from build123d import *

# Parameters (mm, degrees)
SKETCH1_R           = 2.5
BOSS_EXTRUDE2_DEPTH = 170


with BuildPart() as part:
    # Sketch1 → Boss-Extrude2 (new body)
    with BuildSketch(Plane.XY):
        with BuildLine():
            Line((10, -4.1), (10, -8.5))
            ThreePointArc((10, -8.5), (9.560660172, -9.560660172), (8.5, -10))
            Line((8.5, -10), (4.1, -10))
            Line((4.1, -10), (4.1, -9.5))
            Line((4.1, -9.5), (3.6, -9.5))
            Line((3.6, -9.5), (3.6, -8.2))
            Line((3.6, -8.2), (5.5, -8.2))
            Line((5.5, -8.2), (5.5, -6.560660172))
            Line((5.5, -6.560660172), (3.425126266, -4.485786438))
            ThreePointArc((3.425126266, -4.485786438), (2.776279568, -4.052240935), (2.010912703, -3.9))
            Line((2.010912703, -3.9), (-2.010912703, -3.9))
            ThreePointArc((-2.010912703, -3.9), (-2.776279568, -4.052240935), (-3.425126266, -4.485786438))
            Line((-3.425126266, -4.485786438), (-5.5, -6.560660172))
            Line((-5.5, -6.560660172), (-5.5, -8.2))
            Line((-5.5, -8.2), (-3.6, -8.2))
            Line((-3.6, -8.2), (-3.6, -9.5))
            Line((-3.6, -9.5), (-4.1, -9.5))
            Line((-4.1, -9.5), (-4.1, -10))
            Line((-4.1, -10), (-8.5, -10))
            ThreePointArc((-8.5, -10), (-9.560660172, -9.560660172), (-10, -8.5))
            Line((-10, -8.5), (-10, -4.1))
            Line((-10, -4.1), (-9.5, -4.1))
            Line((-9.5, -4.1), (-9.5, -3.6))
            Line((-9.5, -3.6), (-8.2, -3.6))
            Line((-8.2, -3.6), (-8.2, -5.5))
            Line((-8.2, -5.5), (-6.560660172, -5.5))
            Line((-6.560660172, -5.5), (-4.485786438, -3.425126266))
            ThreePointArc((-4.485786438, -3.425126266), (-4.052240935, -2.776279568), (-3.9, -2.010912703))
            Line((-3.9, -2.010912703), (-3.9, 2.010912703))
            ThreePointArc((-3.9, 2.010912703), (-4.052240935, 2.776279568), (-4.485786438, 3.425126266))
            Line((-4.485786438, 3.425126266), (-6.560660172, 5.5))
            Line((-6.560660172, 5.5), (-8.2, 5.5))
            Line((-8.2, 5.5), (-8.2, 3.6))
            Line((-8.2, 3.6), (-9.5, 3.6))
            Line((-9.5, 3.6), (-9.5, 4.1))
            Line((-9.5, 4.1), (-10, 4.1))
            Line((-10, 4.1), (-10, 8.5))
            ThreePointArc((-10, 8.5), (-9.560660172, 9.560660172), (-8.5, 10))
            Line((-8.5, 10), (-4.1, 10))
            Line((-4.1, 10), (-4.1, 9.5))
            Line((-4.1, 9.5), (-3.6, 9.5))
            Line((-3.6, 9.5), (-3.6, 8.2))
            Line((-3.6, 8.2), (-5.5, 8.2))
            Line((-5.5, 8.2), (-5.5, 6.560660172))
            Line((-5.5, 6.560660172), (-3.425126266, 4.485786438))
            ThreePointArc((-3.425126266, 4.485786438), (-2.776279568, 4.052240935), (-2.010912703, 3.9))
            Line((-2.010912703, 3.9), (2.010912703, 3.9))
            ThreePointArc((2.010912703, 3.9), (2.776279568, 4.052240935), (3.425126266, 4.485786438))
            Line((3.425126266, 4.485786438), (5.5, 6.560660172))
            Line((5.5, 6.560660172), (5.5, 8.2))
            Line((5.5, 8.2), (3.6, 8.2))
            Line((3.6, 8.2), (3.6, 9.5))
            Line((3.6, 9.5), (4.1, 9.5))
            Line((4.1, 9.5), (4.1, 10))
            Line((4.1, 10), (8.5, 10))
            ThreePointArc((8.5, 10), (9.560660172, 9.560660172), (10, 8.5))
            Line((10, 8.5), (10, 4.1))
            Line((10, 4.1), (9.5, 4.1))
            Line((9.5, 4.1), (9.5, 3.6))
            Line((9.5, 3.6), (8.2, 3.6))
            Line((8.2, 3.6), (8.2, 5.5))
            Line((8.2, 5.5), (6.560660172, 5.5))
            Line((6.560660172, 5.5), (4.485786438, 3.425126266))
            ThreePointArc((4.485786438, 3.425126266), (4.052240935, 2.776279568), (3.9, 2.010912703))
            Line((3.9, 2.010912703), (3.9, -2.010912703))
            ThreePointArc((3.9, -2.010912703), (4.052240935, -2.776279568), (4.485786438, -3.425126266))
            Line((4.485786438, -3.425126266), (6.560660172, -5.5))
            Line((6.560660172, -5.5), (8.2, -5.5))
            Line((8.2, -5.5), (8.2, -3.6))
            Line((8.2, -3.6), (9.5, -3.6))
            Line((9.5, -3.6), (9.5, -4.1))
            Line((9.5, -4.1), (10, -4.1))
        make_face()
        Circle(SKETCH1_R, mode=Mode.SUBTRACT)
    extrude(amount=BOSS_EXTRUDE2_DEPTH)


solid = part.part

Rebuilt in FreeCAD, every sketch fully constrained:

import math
import FreeCAD as App
import Part
import Sketcher

doc = App.newDocument("Part")
body = doc.addObject("PartDesign::Body", "Body")

sketch1 = body.newObject("Sketcher::SketchObject", "Sketch")
sketch1.AttachmentSupport = (doc.getObject("XY_Plane"), [""])
sketch1.MapMode = "FlatFace"
sketch1.addGeometry(Part.LineSegment(App.Vector(10, -8.5, 0), App.Vector(10, -4.1, 0)), False)
sketch1.addGeometry(Part.LineSegment(App.Vector(10, -4.1, 0), App.Vector(9.5, -4.1, 0)), False)
sketch1.addGeometry(Part.LineSegment(App.Vector(9.5, -4.1, 0), App.Vector(9.5, -3.6, 0)), False)
sketch1.addGeometry(Part.LineSegment(App.Vector(9.5, -3.6, 0), App.Vector(8.2, -3.6, 0)), False)
sketch1.addGeometry(Part.LineSegment(App.Vector(8.2, -3.6, 0), App.Vector(8.2, -5.5, 0)), False)
sketch1.addGeometry(Part.LineSegment(App.Vector(8.2, -5.5, 0), App.Vector(6.56, -5.5, 0)), False)
sketch1.addGeometry(Part.LineSegment(App.Vector(6.56, -5.5, 0), App.Vector(4.49, -3.43, 0)), False)
sketch1.addGeometry(Part.ArcOfCircle(Part.Circle(App.Vector(5.9, -2.01, 0), App.Vector(0, 0, 1), 2), math.radians(180), math.radians(225)), False)
sketch1.addGeometry(Part.LineSegment(App.Vector(3.9, -2.01, 0), App.Vector(3.9, 2.01, 0)), False)
sketch1.addGeometry(Part.ArcOfCircle(Part.Circle(App.Vector(5.9, 2.01, 0), App.Vector(0, 0, 1), 2), math.radians(135), math.radians(180)), False)
sketch1.addGeometry(Part.LineSegment(App.Vector(4.49, 3.43, 0), App.Vector(6.56, 5.5, 0)), False)
sketch1.addGeometry(Part.LineSegment(App.Vector(6.56, 5.5, 0), App.Vector(8.2, 5.5, 0)), False)
sketch1.addGeometry(Part.LineSegment(App.Vector(8.2, 5.5, 0), App.Vector(8.2, 3.6, 0)), False)
sketch1.addGeometry(Part.LineSegment(App.Vector(8.2, 3.6, 0), App.Vector(9.5, 3.6, 0)), False)
sketch1.addGeometry(Part.LineSegment(App.Vector(9.5, 3.6, 0), App.Vector(9.5, 4.1, 0)), False)
sketch1.addGeometry(Part.LineSegment(App.Vector(9.5, 4.1, 0), App.Vector(10, 4.1, 0)), False)
sketch1.addGeometry(Part.LineSegment(App.Vector(10, 4.1, 0), App.Vector(10, 8.5, 0)), False)
sketch1.addGeometry(Part.ArcOfCircle(Part.Circle(App.Vector(8.5, 8.5, 0), App.Vector(0, 0, 1), 1.5), math.radians(0), math.radians(90)), False)
sketch1.addGeometry(Part.LineSegment(App.Vector(8.5, 10, 0), App.Vector(4.1, 10, 0)), False)
sketch1.addGeometry(Part.LineSegment(App.Vector(4.1, 10, 0), App.Vector(4.1, 9.5, 0)), False)
sketch1.addGeometry(Part.LineSegment(App.Vector(4.1, 9.5, 0), App.Vector(3.6, 9.5, 0)), False)
sketch1.addGeometry(Part.LineSegment(App.Vector(3.6, 9.5, 0), App.Vector(3.6, 8.2, 0)), False)
sketch1.addGeometry(Part.LineSegment(App.Vector(3.6, 8.2, 0), App.Vector(5.5, 8.2, 0)), False)
sketch1.addGeometry(Part.LineSegment(App.Vector(5.5, 8.2, 0), App.Vector(5.5, 6.56, 0)), False)
sketch1.addGeometry(Part.LineSegment(App.Vector(5.5, 6.56, 0), App.Vector(3.43, 4.49, 0)), False)
sketch1.addGeometry(Part.ArcOfCircle(Part.Circle(App.Vector(2.01, 5.9, 0), App.Vector(0, 0, 1), 2), math.radians(-90), math.radians(-45)), False)
sketch1.addGeometry(Part.LineSegment(App.Vector(2.01, 3.9, 0), App.Vector(-2.01, 3.9, 0)), False)
sketch1.addGeometry(Part.ArcOfCircle(Part.Circle(App.Vector(-2.01, 5.9, 0), App.Vector(0, 0, 1), 2), math.radians(-135), math.radians(-90)), False)
sketch1.addGeometry(Part.LineSegment(App.Vector(-3.43, 4.49, 0), App.Vector(-5.5, 6.56, 0)), False)
sketch1.addGeometry(Part.LineSegment(App.Vector(-5.5, 6.56, 0), App.Vector(-5.5, 8.2, 0)), False)
sketch1.addGeometry(Part.LineSegment(App.Vector(-5.5, 8.2, 0), App.Vector(-3.6, 8.2, 0)), False)
sketch1.addGeometry(Part.LineSegment(App.Vector(-3.6, 8.2, 0), App.Vector(-3.6, 9.5, 0)), False)
sketch1.addGeometry(Part.LineSegment(App.Vector(-3.6, 9.5, 0), App.Vector(-4.1, 9.5, 0)), False)
sketch1.addGeometry(Part.LineSegment(App.Vector(-4.1, 9.5, 0), App.Vector(-4.1, 10, 0)), False)
sketch1.addGeometry(Part.LineSegment(App.Vector(-4.1, 10, 0), App.Vector(-8.5, 10, 0)), False)
sketch1.addGeometry(Part.ArcOfCircle(Part.Circle(App.Vector(-8.5, 8.5, 0), App.Vector(0, 0, 1), 1.5), math.radians(90), math.radians(180)), False)
sketch1.addGeometry(Part.LineSegment(App.Vector(-10, 8.5, 0), App.Vector(-10, 4.1, 0)), False)
sketch1.addGeometry(Part.LineSegment(App.Vector(-10, 4.1, 0), App.Vector(-9.5, 4.1, 0)), False)
sketch1.addGeometry(Part.LineSegment(App.Vector(-9.5, 4.1, 0), App.Vector(-9.5, 3.6, 0)), False)
sketch1.addGeometry(Part.LineSegment(App.Vector(-9.5, 3.6, 0), App.Vector(-8.2, 3.6, 0)), False)
sketch1.addGeometry(Part.LineSegment(App.Vector(-8.2, 3.6, 0), App.Vector(-8.2, 5.5, 0)), False)
sketch1.addGeometry(Part.LineSegment(App.Vector(-8.2, 5.5, 0), App.Vector(-6.56, 5.5, 0)), False)
sketch1.addGeometry(Part.LineSegment(App.Vector(-6.56, 5.5, 0), App.Vector(-4.49, 3.43, 0)), False)
sketch1.addGeometry(Part.ArcOfCircle(Part.Circle(App.Vector(-5.9, 2.01, 0), App.Vector(0, 0, 1), 2), math.radians(0), math.radians(45)), False)
sketch1.addGeometry(Part.LineSegment(App.Vector(-3.9, 2.01, 0), App.Vector(-3.9, -2.01, 0)), False)
sketch1.addGeometry(Part.ArcOfCircle(Part.Circle(App.Vector(-5.9, -2.01, 0), App.Vector(0, 0, 1), 2), math.radians(-45), math.radians(0)), False)
sketch1.addGeometry(Part.LineSegment(App.Vector(-4.49, -3.43, 0), App.Vector(-6.56, -5.5, 0)), False)
sketch1.addGeometry(Part.LineSegment(App.Vector(-6.56, -5.5, 0), App.Vector(-8.2, -5.5, 0)), False)
sketch1.addGeometry(Part.LineSegment(App.Vector(-8.2, -5.5, 0), App.Vector(-8.2, -3.6, 0)), False)
sketch1.addGeometry(Part.LineSegment(App.Vector(-8.2, -3.6, 0), App.Vector(-9.5, -3.6, 0)), False)
sketch1.addGeometry(Part.LineSegment(App.Vector(-9.5, -3.6, 0), App.Vector(-9.5, -4.1, 0)), False)
sketch1.addGeometry(Part.LineSegment(App.Vector(-9.5, -4.1, 0), App.Vector(-10, -4.1, 0)), False)
sketch1.addGeometry(Part.LineSegment(App.Vector(-10, -4.1, 0), App.Vector(-10, -8.5, 0)), False)
sketch1.addGeometry(Part.ArcOfCircle(Part.Circle(App.Vector(-8.5, -8.5, 0), App.Vector(0, 0, 1), 1.5), math.radians(180), math.radians(270)), False)
sketch1.addGeometry(Part.LineSegment(App.Vector(-8.5, -10, 0), App.Vector(-4.1, -10, 0)), False)
sketch1.addGeometry(Part.LineSegment(App.Vector(-4.1, -10, 0), App.Vector(-4.1, -9.5, 0)), False)
sketch1.addGeometry(Part.LineSegment(App.Vector(-4.1, -9.5, 0), App.Vector(-3.6, -9.5, 0)), False)
sketch1.addGeometry(Part.LineSegment(App.Vector(-3.6, -9.5, 0), App.Vector(-3.6, -8.2, 0)), False)
sketch1.addGeometry(Part.LineSegment(App.Vector(-3.6, -8.2, 0), App.Vector(-5.5, -8.2, 0)), False)
sketch1.addGeometry(Part.LineSegment(App.Vector(-5.5, -8.2, 0), App.Vector(-5.5, -6.56, 0)), False)
sketch1.addGeometry(Part.LineSegment(App.Vector(-5.5, -6.56, 0), App.Vector(-3.43, -4.49, 0)), False)
sketch1.addGeometry(Part.ArcOfCircle(Part.Circle(App.Vector(-2.01, -5.9, 0), App.Vector(0, 0, 1), 2), math.radians(90), math.radians(135)), False)
sketch1.addGeometry(Part.LineSegment(App.Vector(-2.01, -3.9, 0), App.Vector(2.01, -3.9, 0)), False)
sketch1.addGeometry(Part.ArcOfCircle(Part.Circle(App.Vector(2.01, -5.9, 0), App.Vector(0, 0, 1), 2), math.radians(45), math.radians(90)), False)
sketch1.addGeometry(Part.LineSegment(App.Vector(3.43, -4.49, 0), App.Vector(5.5, -6.56, 0)), False)
sketch1.addGeometry(Part.LineSegment(App.Vector(5.5, -6.56, 0), App.Vector(5.5, -8.2, 0)), False)
sketch1.addGeometry(Part.LineSegment(App.Vector(5.5, -8.2, 0), App.Vector(3.6, -8.2, 0)), False)
sketch1.addGeometry(Part.LineSegment(App.Vector(3.6, -8.2, 0), App.Vector(3.6, -9.5, 0)), False)
sketch1.addGeometry(Part.LineSegment(App.Vector(3.6, -9.5, 0), App.Vector(4.1, -9.5, 0)), False)
sketch1.addGeometry(Part.LineSegment(App.Vector(4.1, -9.5, 0), App.Vector(4.1, -10, 0)), False)
sketch1.addGeometry(Part.LineSegment(App.Vector(4.1, -10, 0), App.Vector(8.5, -10, 0)), False)
sketch1.addGeometry(Part.ArcOfCircle(Part.Circle(App.Vector(8.5, -8.5, 0), App.Vector(0, 0, 1), 1.5), math.radians(-90), math.radians(0)), False)
sketch1.addGeometry(Part.Circle(App.Vector(0, 0, 0), App.Vector(0, 0, 1), 2.5), False)
sketch1.addConstraint(Sketcher.Constraint("Coincident", 0, 2, 1, 1))
sketch1.addConstraint(Sketcher.Constraint("Coincident", 1, 2, 2, 1))
sketch1.addConstraint(Sketcher.Constraint("Coincident", 2, 2, 3, 1))
sketch1.addConstraint(Sketcher.Constraint("Coincident", 3, 2, 4, 1))
sketch1.addConstraint(Sketcher.Constraint("Coincident", 4, 2, 5, 1))
sketch1.addConstraint(Sketcher.Constraint("Coincident", 5, 2, 6, 1))
sketch1.addConstraint(Sketcher.Constraint("Tangent", 6, 2, 7, 2))
sketch1.addConstraint(Sketcher.Constraint("Tangent", 7, 1, 8, 1))
sketch1.addConstraint(Sketcher.Constraint("Tangent", 8, 2, 9, 2))
sketch1.addConstraint(Sketcher.Constraint("Tangent", 9, 1, 10, 1))
sketch1.addConstraint(Sketcher.Constraint("Coincident", 10, 2, 11, 1))
sketch1.addConstraint(Sketcher.Constraint("Coincident", 11, 2, 12, 1))
sketch1.addConstraint(Sketcher.Constraint("Coincident", 12, 2, 13, 1))
sketch1.addConstraint(Sketcher.Constraint("Coincident", 13, 2, 14, 1))
sketch1.addConstraint(Sketcher.Constraint("Coincident", 14, 2, 15, 1))
sketch1.addConstraint(Sketcher.Constraint("Coincident", 15, 2, 16, 1))
sketch1.addConstraint(Sketcher.Constraint("Tangent", 16, 2, 17, 1))
sketch1.addConstraint(Sketcher.Constraint("Tangent", 17, 2, 18, 1))
sketch1.addConstraint(Sketcher.Constraint("Coincident", 18, 2, 19, 1))
sketch1.addConstraint(Sketcher.Constraint("Coincident", 19, 2, 20, 1))
sketch1.addConstraint(Sketcher.Constraint("Coincident", 20, 2, 21, 1))
sketch1.addConstraint(Sketcher.Constraint("Coincident", 21, 2, 22, 1))
sketch1.addConstraint(Sketcher.Constraint("Coincident", 22, 2, 23, 1))
sketch1.addConstraint(Sketcher.Constraint("Coincident", 23, 2, 24, 1))
sketch1.addConstraint(Sketcher.Constraint("Tangent", 24, 2, 25, 2))
sketch1.addConstraint(Sketcher.Constraint("Tangent", 25, 1, 26, 1))
sketch1.addConstraint(Sketcher.Constraint("Tangent", 26, 2, 27, 2))
sketch1.addConstraint(Sketcher.Constraint("Tangent", 27, 1, 28, 1))
sketch1.addConstraint(Sketcher.Constraint("Coincident", 28, 2, 29, 1))
sketch1.addConstraint(Sketcher.Constraint("Coincident", 29, 2, 30, 1))
sketch1.addConstraint(Sketcher.Constraint("Coincident", 30, 2, 31, 1))
sketch1.addConstraint(Sketcher.Constraint("Coincident", 31, 2, 32, 1))
sketch1.addConstraint(Sketcher.Constraint("Coincident", 32, 2, 33, 1))
sketch1.addConstraint(Sketcher.Constraint("Coincident", 33, 2, 34, 1))
sketch1.addConstraint(Sketcher.Constraint("Tangent", 34, 2, 35, 1))
sketch1.addConstraint(Sketcher.Constraint("Tangent", 35, 2, 36, 1))
sketch1.addConstraint(Sketcher.Constraint("Coincident", 36, 2, 37, 1))
sketch1.addConstraint(Sketcher.Constraint("Coincident", 37, 2, 38, 1))
sketch1.addConstraint(Sketcher.Constraint("Coincident", 38, 2, 39, 1))
sketch1.addConstraint(Sketcher.Constraint("Coincident", 39, 2, 40, 1))
sketch1.addConstraint(Sketcher.Constraint("Coincident", 40, 2, 41, 1))
sketch1.addConstraint(Sketcher.Constraint("Coincident", 41, 2, 42, 1))
sketch1.addConstraint(Sketcher.Constraint("Tangent", 42, 2, 43, 2))
sketch1.addConstraint(Sketcher.Constraint("Tangent", 43, 1, 44, 1))
sketch1.addConstraint(Sketcher.Constraint("Tangent", 44, 2, 45, 2))
sketch1.addConstraint(Sketcher.Constraint("Tangent", 45, 1, 46, 1))
sketch1.addConstraint(Sketcher.Constraint("Coincident", 46, 2, 47, 1))
sketch1.addConstraint(Sketcher.Constraint("Coincident", 47, 2, 48, 1))
sketch1.addConstraint(Sketcher.Constraint("Coincident", 48, 2, 49, 1))
sketch1.addConstraint(Sketcher.Constraint("Coincident", 49, 2, 50, 1))
sketch1.addConstraint(Sketcher.Constraint("Coincident", 50, 2, 51, 1))
sketch1.addConstraint(Sketcher.Constraint("Coincident", 51, 2, 52, 1))
sketch1.addConstraint(Sketcher.Constraint("Tangent", 52, 2, 53, 1))
sketch1.addConstraint(Sketcher.Constraint("Tangent", 53, 2, 54, 1))
sketch1.addConstraint(Sketcher.Constraint("Coincident", 54, 2, 55, 1))
sketch1.addConstraint(Sketcher.Constraint("Coincident", 55, 2, 56, 1))
sketch1.addConstraint(Sketcher.Constraint("Coincident", 56, 2, 57, 1))
sketch1.addConstraint(Sketcher.Constraint("Coincident", 57, 2, 58, 1))
sketch1.addConstraint(Sketcher.Constraint("Coincident", 58, 2, 59, 1))
sketch1.addConstraint(Sketcher.Constraint("Coincident", 59, 2, 60, 1))
sketch1.addConstraint(Sketcher.Constraint("Tangent", 60, 2, 61, 2))
sketch1.addConstraint(Sketcher.Constraint("Tangent", 61, 1, 62, 1))
sketch1.addConstraint(Sketcher.Constraint("Tangent", 62, 2, 63, 2))
sketch1.addConstraint(Sketcher.Constraint("Tangent", 63, 1, 64, 1))
sketch1.addConstraint(Sketcher.Constraint("Coincident", 64, 2, 65, 1))
sketch1.addConstraint(Sketcher.Constraint("Coincident", 65, 2, 66, 1))
sketch1.addConstraint(Sketcher.Constraint("Coincident", 66, 2, 67, 1))
sketch1.addConstraint(Sketcher.Constraint("Coincident", 67, 2, 68, 1))
sketch1.addConstraint(Sketcher.Constraint("Coincident", 68, 2, 69, 1))
sketch1.addConstraint(Sketcher.Constraint("Coincident", 69, 2, 70, 1))
sketch1.addConstraint(Sketcher.Constraint("Tangent", 70, 2, 71, 1))
sketch1.addConstraint(Sketcher.Constraint("Tangent", 71, 2, 0, 1))
sketch1.addConstraint(Sketcher.Constraint("Vertical", 0))
sketch1.addConstraint(Sketcher.Constraint("Horizontal", 1))
sketch1.addConstraint(Sketcher.Constraint("Vertical", 2))
sketch1.addConstraint(Sketcher.Constraint("Horizontal", 3))
sketch1.addConstraint(Sketcher.Constraint("Vertical", 4))
sketch1.addConstraint(Sketcher.Constraint("Horizontal", 5))
sketch1.addConstraint(Sketcher.Constraint("Vertical", 8))
sketch1.addConstraint(Sketcher.Constraint("Horizontal", 11))
sketch1.addConstraint(Sketcher.Constraint("Vertical", 12))
sketch1.addConstraint(Sketcher.Constraint("Horizontal", 13))
sketch1.addConstraint(Sketcher.Constraint("Vertical", 14))
sketch1.addConstraint(Sketcher.Constraint("Horizontal", 15))
sketch1.addConstraint(Sketcher.Constraint("Vertical", 16))
sketch1.addConstraint(Sketcher.Constraint("Horizontal", 18))
sketch1.addConstraint(Sketcher.Constraint("Vertical", 19))
sketch1.addConstraint(Sketcher.Constraint("Horizontal", 20))
sketch1.addConstraint(Sketcher.Constraint("Vertical", 21))
sketch1.addConstraint(Sketcher.Constraint("Horizontal", 22))
sketch1.addConstraint(Sketcher.Constraint("Vertical", 23))
sketch1.addConstraint(Sketcher.Constraint("Horizontal", 26))
sketch1.addConstraint(Sketcher.Constraint("Vertical", 29))
sketch1.addConstraint(Sketcher.Constraint("Horizontal", 30))
sketch1.addConstraint(Sketcher.Constraint("Vertical", 31))
sketch1.addConstraint(Sketcher.Constraint("Horizontal", 32))
sketch1.addConstraint(Sketcher.Constraint("Vertical", 33))
sketch1.addConstraint(Sketcher.Constraint("Horizontal", 34))
sketch1.addConstraint(Sketcher.Constraint("Vertical", 36))
sketch1.addConstraint(Sketcher.Constraint("Horizontal", 37))
sketch1.addConstraint(Sketcher.Constraint("Vertical", 38))
sketch1.addConstraint(Sketcher.Constraint("Horizontal", 39))
sketch1.addConstraint(Sketcher.Constraint("Vertical", 40))
sketch1.addConstraint(Sketcher.Constraint("Horizontal", 41))
sketch1.addConstraint(Sketcher.Constraint("Vertical", 44))
sketch1.addConstraint(Sketcher.Constraint("Horizontal", 47))
sketch1.addConstraint(Sketcher.Constraint("Vertical", 48))
sketch1.addConstraint(Sketcher.Constraint("Horizontal", 49))
sketch1.addConstraint(Sketcher.Constraint("Vertical", 50))
sketch1.addConstraint(Sketcher.Constraint("Horizontal", 51))
sketch1.addConstraint(Sketcher.Constraint("Vertical", 52))
sketch1.addConstraint(Sketcher.Constraint("Horizontal", 54))
sketch1.addConstraint(Sketcher.Constraint("Vertical", 55))
sketch1.addConstraint(Sketcher.Constraint("Horizontal", 56))
sketch1.addConstraint(Sketcher.Constraint("Vertical", 57))
sketch1.addConstraint(Sketcher.Constraint("Horizontal", 58))
sketch1.addConstraint(Sketcher.Constraint("Vertical", 59))
sketch1.addConstraint(Sketcher.Constraint("Horizontal", 62))
sketch1.addConstraint(Sketcher.Constraint("Vertical", 65))
sketch1.addConstraint(Sketcher.Constraint("Horizontal", 66))
sketch1.addConstraint(Sketcher.Constraint("Vertical", 67))
sketch1.addConstraint(Sketcher.Constraint("Horizontal", 68))
sketch1.addConstraint(Sketcher.Constraint("Vertical", 69))
sketch1.addConstraint(Sketcher.Constraint("Horizontal", 70))
sketch1.addConstraint(Sketcher.Constraint("Coincident", 72, 3, -1, 1))
sketch1.addConstraint(Sketcher.Constraint("Equal", 7, 9))
sketch1.addConstraint(Sketcher.Constraint("Equal", 9, 25))
sketch1.addConstraint(Sketcher.Constraint("Equal", 25, 27))
sketch1.addConstraint(Sketcher.Constraint("Equal", 17, 35))
sketch1.addConstraint(Sketcher.Constraint("Equal", 27, 43))
sketch1.addConstraint(Sketcher.Constraint("Equal", 43, 45))
sketch1.addConstraint(Sketcher.Constraint("Equal", 35, 53))
sketch1.addConstraint(Sketcher.Constraint("Equal", 45, 61))
sketch1.addConstraint(Sketcher.Constraint("Equal", 61, 63))
sketch1.addConstraint(Sketcher.Constraint("Equal", 53, 71))
sketch1.addConstraint(Sketcher.Constraint("Symmetric", 7, 3, 43, 3, -1, 1))
sketch1.addConstraint(Sketcher.Constraint("Symmetric", 17, 3, 53, 3, -1, 1))
sketch1.addConstraint(Sketcher.Constraint("Symmetric", 25, 3, 61, 3, -1, 1))
sketch1.addConstraint(Sketcher.Constraint("Symmetric", 35, 3, 71, 3, -1, 1))
sketch1.addConstraint(Sketcher.Constraint("Symmetric", 1, 2, 37, 2, -1, 1))
sketch1.addConstraint(Sketcher.Constraint("Symmetric", 3, 2, 39, 2, -1, 1))
sketch1.addConstraint(Sketcher.Constraint("Symmetric", 5, 2, 41, 2, -1, 1))
sketch1.addConstraint(Sketcher.Constraint("Symmetric", 9, 1, 45, 1, -1, 1))
sketch1.addConstraint(Sketcher.Constraint("Symmetric", 11, 2, 47, 2, -1, 1))
sketch1.addConstraint(Sketcher.Constraint("Symmetric", 13, 2, 49, 2, -1, 1))
sketch1.addConstraint(Sketcher.Constraint("Symmetric", 19, 2, 55, 2, -1, 1))
sketch1.addConstraint(Sketcher.Constraint("Symmetric", 21, 2, 57, 2, -1, 1))
sketch1.addConstraint(Sketcher.Constraint("Symmetric", 23, 2, 59, 2, -1, 1))
sketch1.addConstraint(Sketcher.Constraint("Symmetric", 27, 1, 63, 1, -1, 1))
sketch1.addConstraint(Sketcher.Constraint("Symmetric", 29, 2, 65, 2, -1, 1))
sketch1.addConstraint(Sketcher.Constraint("Symmetric", 31, 2, 67, 2, -1, 1))
sketch1.addConstraint(Sketcher.Constraint("Symmetric", 17, 3, 35, 3, -2))
sketch1.addConstraint(Sketcher.Constraint("Symmetric", 24, 2, 27, 1, -2))
sketch1.addConstraint(Sketcher.Constraint("Symmetric", 22, 2, 29, 2, -2))
sketch1.addConstraint(Sketcher.Constraint("Symmetric", 20, 2, 31, 2, -2))
sketch1.addConstraint(Sketcher.Constraint("Symmetric", 14, 2, 37, 2, -2))
sketch1.addConstraint(Sketcher.Constraint("Symmetric", 12, 2, 39, 2, -2))
sketch1.addConstraint(Sketcher.Constraint("Symmetric", 10, 2, 41, 2, -2))
sketch1.addConstraint(Sketcher.Constraint("Perpendicular", 6, 10))
sketch1.addConstraint(Sketcher.Constraint("Parallel", 10, 24))
sketch1.addConstraint(Sketcher.Constraint("Perpendicular", 24, 28))
sketch1.addConstraint(Sketcher.Constraint("Horizontal", 1, 2, 50, 2))
sketch1.addConstraint(Sketcher.Constraint("Vertical", 33, 2, 54, 2))
sketch1.addConstraint(Sketcher.Constraint("Vertical", 19, 2, 68, 2))
sketch1.addConstraint(Sketcher.Constraint("Equal", 15, 20))
sketch1.addConstraint(Sketcher.Constraint("Equal", 70, 0))
sketch1.addConstraint(Sketcher.Constraint("Equal", 68, 2))
sketch1.addConstraint(Sketcher.Constraint("Equal", 66, 4))
sketch1.addConstraint(Sketcher.Constraint("Equal", 62, 8))
sketch1.addConstraint(Sketcher.Constraint("Equal", 14, 19))
sketch1.addConstraint(Sketcher.Constraint("Equal", 49, 21))
sketch1.addConstraint(Sketcher.Constraint("Equal", 47, 23))
sketch1.addConstraint(Sketcher.Constraint("Equal", 10, 24))
sketch1.addConstraint(Sketcher.Constraint("Diameter", 72, 5.0))
sketch1.addConstraint(Sketcher.Constraint("Radius", 7, 2.0))
sketch1.addConstraint(Sketcher.Constraint("Radius", 17, 1.5))
sketch1.addConstraint(Sketcher.Constraint("DistanceX", 1, 2, 1, 1, 0.5))
sketch1.addConstraint(Sketcher.Constraint("DistanceX", 3, 2, 3, 1, 1.3))
sketch1.addConstraint(Sketcher.Constraint("DistanceX", 18, 2, 18, 1, 4.4))
sketch1.addConstraint(Sketcher.Constraint("DistanceX", 22, 1, 22, 2, 1.9))
sketch1.addConstraint(Sketcher.Constraint("DistanceX", -1, 1, 0, 2, 10.0))
sketch1.addConstraint(Sketcher.Constraint("DistanceX", -1, 1, 7, 3, 5.9))
sketch1.addConstraint(Sketcher.Constraint("DistanceX", 5, 2, 5, 1, 1.63934))
pad1 = body.newObject("PartDesign::Pad", "Pad")
pad1.Profile = sketch1
pad1.Length = 170

doc.recompute()
